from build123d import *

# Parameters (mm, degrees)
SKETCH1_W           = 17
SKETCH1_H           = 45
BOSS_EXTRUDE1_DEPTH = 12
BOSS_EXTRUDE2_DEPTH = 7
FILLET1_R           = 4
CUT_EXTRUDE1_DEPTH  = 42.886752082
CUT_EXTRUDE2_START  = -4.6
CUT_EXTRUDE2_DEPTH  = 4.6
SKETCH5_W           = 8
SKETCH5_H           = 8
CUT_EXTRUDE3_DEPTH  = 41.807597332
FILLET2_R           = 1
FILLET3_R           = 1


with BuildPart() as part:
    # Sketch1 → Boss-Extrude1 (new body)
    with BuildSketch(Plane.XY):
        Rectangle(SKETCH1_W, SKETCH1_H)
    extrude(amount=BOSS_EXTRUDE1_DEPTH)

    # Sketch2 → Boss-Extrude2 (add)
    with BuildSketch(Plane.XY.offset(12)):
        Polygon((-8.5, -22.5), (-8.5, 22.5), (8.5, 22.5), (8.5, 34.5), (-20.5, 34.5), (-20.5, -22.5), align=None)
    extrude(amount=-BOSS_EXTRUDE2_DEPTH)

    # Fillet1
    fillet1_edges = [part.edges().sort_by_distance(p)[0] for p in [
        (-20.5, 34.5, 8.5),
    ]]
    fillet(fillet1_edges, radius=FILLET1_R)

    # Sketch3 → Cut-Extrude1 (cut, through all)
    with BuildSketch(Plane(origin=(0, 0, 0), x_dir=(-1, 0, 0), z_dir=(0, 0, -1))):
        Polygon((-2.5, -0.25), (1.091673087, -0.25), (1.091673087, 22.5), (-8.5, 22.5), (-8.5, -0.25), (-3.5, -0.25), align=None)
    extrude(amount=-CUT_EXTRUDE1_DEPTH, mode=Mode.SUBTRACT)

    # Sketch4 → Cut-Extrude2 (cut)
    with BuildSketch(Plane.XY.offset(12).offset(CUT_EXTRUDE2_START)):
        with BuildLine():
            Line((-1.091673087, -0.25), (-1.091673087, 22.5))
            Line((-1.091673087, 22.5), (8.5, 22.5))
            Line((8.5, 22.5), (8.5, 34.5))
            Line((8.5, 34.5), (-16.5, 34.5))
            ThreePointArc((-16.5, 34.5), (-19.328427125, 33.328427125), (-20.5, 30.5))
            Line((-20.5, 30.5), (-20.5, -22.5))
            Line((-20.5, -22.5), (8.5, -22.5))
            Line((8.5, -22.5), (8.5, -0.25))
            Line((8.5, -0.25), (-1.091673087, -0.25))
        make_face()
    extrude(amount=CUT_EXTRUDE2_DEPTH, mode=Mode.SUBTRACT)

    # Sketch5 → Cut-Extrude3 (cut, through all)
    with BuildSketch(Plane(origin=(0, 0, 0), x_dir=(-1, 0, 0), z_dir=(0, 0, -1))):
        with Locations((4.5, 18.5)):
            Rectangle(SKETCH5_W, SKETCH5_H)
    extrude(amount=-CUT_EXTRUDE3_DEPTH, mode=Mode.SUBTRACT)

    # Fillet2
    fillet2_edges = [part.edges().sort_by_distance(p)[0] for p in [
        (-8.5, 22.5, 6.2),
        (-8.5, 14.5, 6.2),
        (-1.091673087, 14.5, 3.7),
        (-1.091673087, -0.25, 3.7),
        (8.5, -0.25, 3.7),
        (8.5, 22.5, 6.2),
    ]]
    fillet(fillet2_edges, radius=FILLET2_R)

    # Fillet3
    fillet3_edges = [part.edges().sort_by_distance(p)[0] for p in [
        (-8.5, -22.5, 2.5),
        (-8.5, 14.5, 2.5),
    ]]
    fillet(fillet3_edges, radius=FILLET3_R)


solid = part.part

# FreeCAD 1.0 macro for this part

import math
import FreeCAD as App
import Part
import Sketcher
from FreeCAD import Vector
Q = App.Units.Quantity


def edges_at(feature, points):
    """Names of the edges that pass closest to the given points."""
    edges = feature.Shape.Edges
    near = lambda p: min(range(len(edges)), key=lambda i: edges[i].distToShape(Part.Vertex(*p))[0])
    return sorted({f"Edge{near(p) + 1}" for p in points})


def add_polygon(sketch, points):
    """Adds a closed chain of lines whose ends are joined by coincident constraints."""
    first, n = sketch.GeometryCount, len(points)
    for a, b in zip(points, points[1:] + points[:1]):
        sketch.addGeometry(Part.LineSegment(App.Vector(*a, 0), App.Vector(*b, 0)), False)
    for i in range(n):
        sketch.addConstraint(Sketcher.Constraint("Coincident", first + i, 2, first + (i + 1) % n, 1))

doc = App.newDocument("Part")
params = doc.addObject("Spreadsheet::Sheet", "Params")
for row, (alias, value) in enumerate([
    ("sketch1_width", "17 mm"),
    ("sketch1_height", "45 mm"),
    ("pad1_length", "12 mm"),
    ("sketch2_width", "17 mm"),
    ("sketch2_width2", "29 mm"),
    ("sketch2_height", "45 mm"),
    ("pad2_length", "7 mm"),
    ("fillet_radius", "4 mm"),
    ("sketch3_height", "22.75 mm"),
    ("sketch4_radius", "4 mm"),
    ("sketch4_width", "25 mm"),
    ("sketch4_height", "12 mm"),
    ("sketch4_height2", "53 mm"),
    ("sketch4_height3", "22.75 mm"),
    ("pocket2_length", "4.6 mm"),
    ("sketch5_width", "8 mm"),
    ("fillet2_radius", "1 mm"),
    ("fillet3_radius", "1 mm"),
], start=1):
    params.set(f"A{row}", alias)
    params.set(f"B{row}", "=" + value)
    params.setAlias(f"B{row}", alias)

body = doc.addObject("PartDesign::Body", "Body")

# Sketch on XY plane
sketch1 = body.newObject("Sketcher::SketchObject", "Sketch")
sketch1.AttachmentSupport = (doc.getObject("XY_Plane"), [""])
sketch1.MapMode = "FlatFace"
add_polygon(sketch1, [(-8.5, 22.5), (-8.5, -22.5), (8.5, -22.5), (8.5, 22.5)])  # lines 0-3
sketch1.addConstraint(Sketcher.Constraint("Vertical", 0))
sketch1.addConstraint(Sketcher.Constraint("Horizontal", 1))
sketch1.addConstraint(Sketcher.Constraint("Vertical", 2))
sketch1.addConstraint(Sketcher.Constraint("Horizontal", 3))
sketch1.addConstraint(Sketcher.Constraint("Symmetric", 0, 2, 2, 2, -1, 1))
sketch1.addConstraint(Sketcher.Constraint("DistanceX", 1, 1, 1, 2, Q("17 mm")))
sketch1.addConstraint(Sketcher.Constraint("DistanceY", 0, 2, 0, 1, Q("45 mm")))
sketch1.setExpression("Constraints[9]", "Params.sketch1_width")
sketch1.setExpression("Constraints[10]", "Params.sketch1_height")
pad1 = body.newObject("PartDesign::Pad", "Pad")
pad1.Profile = sketch1
pad1.setExpression("Length", "Params.pad1_length")

# Sketch on XY plane
sketch2 = body.newObject("Sketcher::SketchObject", "Sketch001")
sketch2.AttachmentSupport = (doc.getObject("XY_Plane"), [""])
sketch2.MapMode = "FlatFace"
sketch2.AttachmentOffset = App.Placement(Vector(0, 0, 12), App.Rotation())
add_polygon(sketch2, [(-8.5, -22.5), (-8.5, 22.5), (8.5, 22.5), (8.5, 34.5), (-20.5, 34.5), (-20.5, -22.5)])  # lines 0-5
sketch2.addConstraint(Sketcher.Constraint("Vertical", 0))
sketch2.addConstraint(Sketcher.Constraint("Horizontal", 1))
sketch2.addConstraint(Sketcher.Constraint("Vertical", 2))
sketch2.addConstraint(Sketcher.Constraint("Horizontal", 3))
sketch2.addConstraint(Sketcher.Constraint("Vertical", 4))
sketch2.addConstraint(Sketcher.Constraint("Horizontal", 5))
sketch2.addConstraint(Sketcher.Constraint("Symmetric", 1, 2, 5, 2, -1, 1))
sketch2.addConstraint(Sketcher.Constraint("Equal", 5, 2))
sketch2.addConstraint(Sketcher.Constraint("DistanceX", 1, 1, 1, 2, Q("17 mm")))
sketch2.addConstraint(Sketcher.Constraint("DistanceX", 3, 2, 3, 1, Q("29 mm")))
sketch2.addConstraint(Sketcher.Constraint("DistanceY", 0, 1, 0, 2, Q("45 mm")))
sketch2.setExpression("Constraints[14]", "Params.sketch2_width")
sketch2.setExpression("Constraints[15]", "Params.sketch2_width2")
sketch2.setExpression("Constraints[16]", "Params.sketch2_height")
pad2 = body.newObject("PartDesign::Pad", "Pad001")
pad2.Profile = sketch2
pad2.setExpression("Length", "Params.pad2_length")
pad2.Reversed = True
doc.recompute()

fillet = body.newObject("PartDesign::Fillet", "Fillet")
fillet.Base = (pad2, edges_at(pad2, [(-20.5, 34.5, 8.5)]))
fillet.setExpression("Radius", "Params.fillet_radius")

# Sketch on XY plane
sketch3 = body.newObject("Sketcher::SketchObject", "Sketch002")
sketch3.AttachmentSupport = (doc.getObject("XY_Plane"), [""])
sketch3.MapMode = "FlatFace"
add_polygon(sketch3, [(-1.091673, -0.25), (-1.091673, 22.5), (8.5, 22.5), (8.5, -0.25)])  # lines 0-3
sketch3.addConstraint(Sketcher.Constraint("Vertical", 0))
sketch3.addConstraint(Sketcher.Constraint("Horizontal", 1))
sketch3.addConstraint(Sketcher.Constraint("Vertical", 2))
sketch3.addConstraint(Sketcher.Constraint("Horizontal", 3))
sketch3.addConstraint(Sketcher.Constraint("DistanceY", 0, 1, 0, 2, Q("22.75 mm")))
sketch3.addConstraint(Sketcher.Constraint("DistanceY", -1, 1, 0, 2, Q("22.5 mm")))
sketch3.addConstraint(Sketcher.Constraint("DistanceX", -1, 1, 1, 2, Q("8.5 mm")))
sketch3.addConstraint(Sketcher.Constraint("DistanceX", 1, 1, 1, 2, Q("9.591673 mm")))
sketch3.setExpression("Constraints[8]", "Params.sketch3_height")
pocket1 = body.newObject("PartDesign::Pocket", "Pocket")
pocket1.Profile = sketch3
pocket1.Type = "ThroughAll"
pocket1.Reversed = True

# Sketch on XY plane
sketch4 = body.newObject("Sketcher::SketchObject", "Sketch003")
sketch4.AttachmentSupport = (doc.getObject("XY_Plane"), [""])
sketch4.MapMode = "FlatFace"
sketch4.AttachmentOffset = App.Placement(Vector(0, 0, 7.4), App.Rotation())
sketch4.addGeometry(Part.LineSegment(Vector(-1.091673, -0.25, 0), Vector(-1.091673, 22.5, 0)), False)
sketch4.addGeometry(Part.LineSegment(Vector(-1.091673, 22.5, 0), Vector(8.5, 22.5, 0)), False)
sketch4.addGeometry(Part.LineSegment(Vector(8.5, 22.5, 0), Vector(8.5, 34.5, 0)), False)
sketch4.addGeometry(Part.LineSegment(Vector(8.5, 34.5, 0), Vector(-16.5, 34.5, 0)), False)
sketch4.addGeometry(Part.ArcOfCircle(Part.Circle(Vector(-16.5, 30.5, 0), Vector(0, 0, 1), 4), math.radians(90), math.radians(180)), False)
sketch4.addGeometry(Part.LineSegment(Vector(-20.5, 30.5, 0), Vector(-20.5, -22.5, 0)), False)
sketch4.addGeometry(Part.LineSegment(Vector(-20.5, -22.5, 0), Vector(8.5, -22.5, 0)), False)
sketch4.addGeometry(Part.LineSegment(Vector(8.5, -22.5, 0), Vector(8.5, -0.25, 0)), False)
sketch4.addGeometry(Part.LineSegment(Vector(8.5, -0.25, 0), Vector(-1.091673, -0.25, 0)), False)
sketch4.addConstraint(Sketcher.Constraint("Coincident", 0, 2, 1, 1))
sketch4.addConstraint(Sketcher.Constraint("Coincident", 1, 2, 2, 1))
sketch4.addConstraint(Sketcher.Constraint("Coincident", 2, 2, 3, 1))
sketch4.addConstraint(Sketcher.Constraint("Tangent", 3, 2, 4, 1))
sketch4.addConstraint(Sketcher.Constraint("Tangent", 4, 2, 5, 1))
sketch4.addConstraint(Sketcher.Constraint("Coincident", 5, 2, 6, 1))
sketch4.addConstraint(Sketcher.Constraint("Coincident", 6, 2, 7, 1))
sketch4.addConstraint(Sketcher.Constraint("Coincident", 7, 2, 8, 1))
sketch4.addConstraint(Sketcher.Constraint("Coincident", 8, 2, 0, 1))
sketch4.addConstraint(Sketcher.Constraint("Vertical", 0))
sketch4.addConstraint(Sketcher.Constraint("Horizontal", 1))
sketch4.addConstraint(Sketcher.Constraint("Vertical", 2))
sketch4.addConstraint(Sketcher.Constraint("Horizontal", 3))
sketch4.addConstraint(Sketcher.Constraint("Vertical", 5))
sketch4.addConstraint(Sketcher.Constraint("Horizontal", 6))
sketch4.addConstraint(Sketcher.Constraint("Vertical", 7))
sketch4.addConstraint(Sketcher.Constraint("Horizontal", 8))
sketch4.addConstraint(Sketcher.Constraint("Symmetric", 1, 2, 6, 2, -1))
sketch4.addConstraint(Sketcher.Constraint("Radius", 4, Q("4 mm")))
sketch4.addConstraint(Sketcher.Constraint("DistanceX", 3, 2, 3, 1, Q("25 mm")))
sketch4.addConstraint(Sketcher.Constraint("DistanceY", 2, 1, 2, 2, Q("12 mm")))
sketch4.addConstraint(Sketcher.Constraint("DistanceY", 5, 2, 5, 1, Q("53 mm")))
sketch4.addConstraint(Sketcher.Constraint("DistanceY", 0, 1, 0, 2, Q("22.75 mm")))
sketch4.addConstraint(Sketcher.Constraint("DistanceX", 4, 3, -1, 1, Q("16.5 mm")))
sketch4.addConstraint(Sketcher.Constraint("DistanceX", 1, 1, 1, 2, Q("9.591673 mm")))
sketch4.setExpression("Constraints[18]", "Params.sketch4_radius")
sketch4.setExpression("Constraints[19]", "Params.sketch4_width")
sketch4.setExpression("Constraints[20]", "Params.sketch4_height")
sketch4.setExpression("Constraints[21]", "Params.sketch4_height2")
sketch4.setExpression("Constraints[22]", "Params.sketch4_height3")
pocket2 = body.newObject("PartDesign::Pocket", "Pocket001")
pocket2.Profile = sketch4
pocket2.setExpression("Length", "Params.pocket2_length")
pocket2.Reversed = True

# Sketch on XY plane
sketch5 = body.newObject("Sketcher::SketchObject", "Sketch004")
sketch5.AttachmentSupport = (doc.getObject("XY_Plane"), [""])
sketch5.MapMode = "FlatFace"
add_polygon(sketch5, [(-0.5, 22.5), (-0.5, 14.5), (-8.5, 14.5), (-8.5, 22.5)])  # lines 0-3
sketch5.addConstraint(Sketcher.Constraint("Vertical", 0))
sketch5.addConstraint(Sketcher.Constraint("Horizontal", 1))
sketch5.addConstraint(Sketcher.Constraint("Vertical", 2))
sketch5.addConstraint(Sketcher.Constraint("Horizontal", 3))
sketch5.addConstraint(Sketcher.Constraint("Equal", 3, 0))
sketch5.addConstraint(Sketcher.Constraint("DistanceX", 1, 2, 1, 1, Q("8 mm")))
sketch5.addConstraint(Sketcher.Constraint("DistanceX", 0, 2, -1, 1, Q("0.5 mm")))
sketch5.addConstraint(Sketcher.Constraint("DistanceY", -1, 1, 0, 2, Q("14.5 mm")))
sketch5.setExpression("Constraints[9]", "Params.sketch5_width")
pocket3 = body.newObject("PartDesign::Pocket", "Pocket002")
pocket3.Profile = sketch5
pocket3.Type = "ThroughAll"
pocket3.Reversed = True
doc.recompute()

fillet2 = body.newObject("PartDesign::Fillet", "Fillet001")
fillet2.Base = (pocket3, edges_at(pocket3, [
    (-8.5, 22.5, 6.2),
    (-8.5, 14.5, 6.2),
    (-1.092, 14.5, 3.7),
    (-1.092, -0.25, 3.7),
    (8.5, -0.25, 3.7),
    (8.5, 22.5, 6.2),
]))
fillet2.setExpression("Radius", "Params.fillet2_radius")
doc.recompute()

fillet3 = body.newObject("PartDesign::Fillet", "Fillet002")
fillet3.Base = (fillet2, edges_at(fillet2, [(-8.5, -22.5, 2.5), (-8.5, 14.5, 2.5)]))
fillet3.setExpression("Radius", "Params.fillet3_radius")

doc.recompute()
